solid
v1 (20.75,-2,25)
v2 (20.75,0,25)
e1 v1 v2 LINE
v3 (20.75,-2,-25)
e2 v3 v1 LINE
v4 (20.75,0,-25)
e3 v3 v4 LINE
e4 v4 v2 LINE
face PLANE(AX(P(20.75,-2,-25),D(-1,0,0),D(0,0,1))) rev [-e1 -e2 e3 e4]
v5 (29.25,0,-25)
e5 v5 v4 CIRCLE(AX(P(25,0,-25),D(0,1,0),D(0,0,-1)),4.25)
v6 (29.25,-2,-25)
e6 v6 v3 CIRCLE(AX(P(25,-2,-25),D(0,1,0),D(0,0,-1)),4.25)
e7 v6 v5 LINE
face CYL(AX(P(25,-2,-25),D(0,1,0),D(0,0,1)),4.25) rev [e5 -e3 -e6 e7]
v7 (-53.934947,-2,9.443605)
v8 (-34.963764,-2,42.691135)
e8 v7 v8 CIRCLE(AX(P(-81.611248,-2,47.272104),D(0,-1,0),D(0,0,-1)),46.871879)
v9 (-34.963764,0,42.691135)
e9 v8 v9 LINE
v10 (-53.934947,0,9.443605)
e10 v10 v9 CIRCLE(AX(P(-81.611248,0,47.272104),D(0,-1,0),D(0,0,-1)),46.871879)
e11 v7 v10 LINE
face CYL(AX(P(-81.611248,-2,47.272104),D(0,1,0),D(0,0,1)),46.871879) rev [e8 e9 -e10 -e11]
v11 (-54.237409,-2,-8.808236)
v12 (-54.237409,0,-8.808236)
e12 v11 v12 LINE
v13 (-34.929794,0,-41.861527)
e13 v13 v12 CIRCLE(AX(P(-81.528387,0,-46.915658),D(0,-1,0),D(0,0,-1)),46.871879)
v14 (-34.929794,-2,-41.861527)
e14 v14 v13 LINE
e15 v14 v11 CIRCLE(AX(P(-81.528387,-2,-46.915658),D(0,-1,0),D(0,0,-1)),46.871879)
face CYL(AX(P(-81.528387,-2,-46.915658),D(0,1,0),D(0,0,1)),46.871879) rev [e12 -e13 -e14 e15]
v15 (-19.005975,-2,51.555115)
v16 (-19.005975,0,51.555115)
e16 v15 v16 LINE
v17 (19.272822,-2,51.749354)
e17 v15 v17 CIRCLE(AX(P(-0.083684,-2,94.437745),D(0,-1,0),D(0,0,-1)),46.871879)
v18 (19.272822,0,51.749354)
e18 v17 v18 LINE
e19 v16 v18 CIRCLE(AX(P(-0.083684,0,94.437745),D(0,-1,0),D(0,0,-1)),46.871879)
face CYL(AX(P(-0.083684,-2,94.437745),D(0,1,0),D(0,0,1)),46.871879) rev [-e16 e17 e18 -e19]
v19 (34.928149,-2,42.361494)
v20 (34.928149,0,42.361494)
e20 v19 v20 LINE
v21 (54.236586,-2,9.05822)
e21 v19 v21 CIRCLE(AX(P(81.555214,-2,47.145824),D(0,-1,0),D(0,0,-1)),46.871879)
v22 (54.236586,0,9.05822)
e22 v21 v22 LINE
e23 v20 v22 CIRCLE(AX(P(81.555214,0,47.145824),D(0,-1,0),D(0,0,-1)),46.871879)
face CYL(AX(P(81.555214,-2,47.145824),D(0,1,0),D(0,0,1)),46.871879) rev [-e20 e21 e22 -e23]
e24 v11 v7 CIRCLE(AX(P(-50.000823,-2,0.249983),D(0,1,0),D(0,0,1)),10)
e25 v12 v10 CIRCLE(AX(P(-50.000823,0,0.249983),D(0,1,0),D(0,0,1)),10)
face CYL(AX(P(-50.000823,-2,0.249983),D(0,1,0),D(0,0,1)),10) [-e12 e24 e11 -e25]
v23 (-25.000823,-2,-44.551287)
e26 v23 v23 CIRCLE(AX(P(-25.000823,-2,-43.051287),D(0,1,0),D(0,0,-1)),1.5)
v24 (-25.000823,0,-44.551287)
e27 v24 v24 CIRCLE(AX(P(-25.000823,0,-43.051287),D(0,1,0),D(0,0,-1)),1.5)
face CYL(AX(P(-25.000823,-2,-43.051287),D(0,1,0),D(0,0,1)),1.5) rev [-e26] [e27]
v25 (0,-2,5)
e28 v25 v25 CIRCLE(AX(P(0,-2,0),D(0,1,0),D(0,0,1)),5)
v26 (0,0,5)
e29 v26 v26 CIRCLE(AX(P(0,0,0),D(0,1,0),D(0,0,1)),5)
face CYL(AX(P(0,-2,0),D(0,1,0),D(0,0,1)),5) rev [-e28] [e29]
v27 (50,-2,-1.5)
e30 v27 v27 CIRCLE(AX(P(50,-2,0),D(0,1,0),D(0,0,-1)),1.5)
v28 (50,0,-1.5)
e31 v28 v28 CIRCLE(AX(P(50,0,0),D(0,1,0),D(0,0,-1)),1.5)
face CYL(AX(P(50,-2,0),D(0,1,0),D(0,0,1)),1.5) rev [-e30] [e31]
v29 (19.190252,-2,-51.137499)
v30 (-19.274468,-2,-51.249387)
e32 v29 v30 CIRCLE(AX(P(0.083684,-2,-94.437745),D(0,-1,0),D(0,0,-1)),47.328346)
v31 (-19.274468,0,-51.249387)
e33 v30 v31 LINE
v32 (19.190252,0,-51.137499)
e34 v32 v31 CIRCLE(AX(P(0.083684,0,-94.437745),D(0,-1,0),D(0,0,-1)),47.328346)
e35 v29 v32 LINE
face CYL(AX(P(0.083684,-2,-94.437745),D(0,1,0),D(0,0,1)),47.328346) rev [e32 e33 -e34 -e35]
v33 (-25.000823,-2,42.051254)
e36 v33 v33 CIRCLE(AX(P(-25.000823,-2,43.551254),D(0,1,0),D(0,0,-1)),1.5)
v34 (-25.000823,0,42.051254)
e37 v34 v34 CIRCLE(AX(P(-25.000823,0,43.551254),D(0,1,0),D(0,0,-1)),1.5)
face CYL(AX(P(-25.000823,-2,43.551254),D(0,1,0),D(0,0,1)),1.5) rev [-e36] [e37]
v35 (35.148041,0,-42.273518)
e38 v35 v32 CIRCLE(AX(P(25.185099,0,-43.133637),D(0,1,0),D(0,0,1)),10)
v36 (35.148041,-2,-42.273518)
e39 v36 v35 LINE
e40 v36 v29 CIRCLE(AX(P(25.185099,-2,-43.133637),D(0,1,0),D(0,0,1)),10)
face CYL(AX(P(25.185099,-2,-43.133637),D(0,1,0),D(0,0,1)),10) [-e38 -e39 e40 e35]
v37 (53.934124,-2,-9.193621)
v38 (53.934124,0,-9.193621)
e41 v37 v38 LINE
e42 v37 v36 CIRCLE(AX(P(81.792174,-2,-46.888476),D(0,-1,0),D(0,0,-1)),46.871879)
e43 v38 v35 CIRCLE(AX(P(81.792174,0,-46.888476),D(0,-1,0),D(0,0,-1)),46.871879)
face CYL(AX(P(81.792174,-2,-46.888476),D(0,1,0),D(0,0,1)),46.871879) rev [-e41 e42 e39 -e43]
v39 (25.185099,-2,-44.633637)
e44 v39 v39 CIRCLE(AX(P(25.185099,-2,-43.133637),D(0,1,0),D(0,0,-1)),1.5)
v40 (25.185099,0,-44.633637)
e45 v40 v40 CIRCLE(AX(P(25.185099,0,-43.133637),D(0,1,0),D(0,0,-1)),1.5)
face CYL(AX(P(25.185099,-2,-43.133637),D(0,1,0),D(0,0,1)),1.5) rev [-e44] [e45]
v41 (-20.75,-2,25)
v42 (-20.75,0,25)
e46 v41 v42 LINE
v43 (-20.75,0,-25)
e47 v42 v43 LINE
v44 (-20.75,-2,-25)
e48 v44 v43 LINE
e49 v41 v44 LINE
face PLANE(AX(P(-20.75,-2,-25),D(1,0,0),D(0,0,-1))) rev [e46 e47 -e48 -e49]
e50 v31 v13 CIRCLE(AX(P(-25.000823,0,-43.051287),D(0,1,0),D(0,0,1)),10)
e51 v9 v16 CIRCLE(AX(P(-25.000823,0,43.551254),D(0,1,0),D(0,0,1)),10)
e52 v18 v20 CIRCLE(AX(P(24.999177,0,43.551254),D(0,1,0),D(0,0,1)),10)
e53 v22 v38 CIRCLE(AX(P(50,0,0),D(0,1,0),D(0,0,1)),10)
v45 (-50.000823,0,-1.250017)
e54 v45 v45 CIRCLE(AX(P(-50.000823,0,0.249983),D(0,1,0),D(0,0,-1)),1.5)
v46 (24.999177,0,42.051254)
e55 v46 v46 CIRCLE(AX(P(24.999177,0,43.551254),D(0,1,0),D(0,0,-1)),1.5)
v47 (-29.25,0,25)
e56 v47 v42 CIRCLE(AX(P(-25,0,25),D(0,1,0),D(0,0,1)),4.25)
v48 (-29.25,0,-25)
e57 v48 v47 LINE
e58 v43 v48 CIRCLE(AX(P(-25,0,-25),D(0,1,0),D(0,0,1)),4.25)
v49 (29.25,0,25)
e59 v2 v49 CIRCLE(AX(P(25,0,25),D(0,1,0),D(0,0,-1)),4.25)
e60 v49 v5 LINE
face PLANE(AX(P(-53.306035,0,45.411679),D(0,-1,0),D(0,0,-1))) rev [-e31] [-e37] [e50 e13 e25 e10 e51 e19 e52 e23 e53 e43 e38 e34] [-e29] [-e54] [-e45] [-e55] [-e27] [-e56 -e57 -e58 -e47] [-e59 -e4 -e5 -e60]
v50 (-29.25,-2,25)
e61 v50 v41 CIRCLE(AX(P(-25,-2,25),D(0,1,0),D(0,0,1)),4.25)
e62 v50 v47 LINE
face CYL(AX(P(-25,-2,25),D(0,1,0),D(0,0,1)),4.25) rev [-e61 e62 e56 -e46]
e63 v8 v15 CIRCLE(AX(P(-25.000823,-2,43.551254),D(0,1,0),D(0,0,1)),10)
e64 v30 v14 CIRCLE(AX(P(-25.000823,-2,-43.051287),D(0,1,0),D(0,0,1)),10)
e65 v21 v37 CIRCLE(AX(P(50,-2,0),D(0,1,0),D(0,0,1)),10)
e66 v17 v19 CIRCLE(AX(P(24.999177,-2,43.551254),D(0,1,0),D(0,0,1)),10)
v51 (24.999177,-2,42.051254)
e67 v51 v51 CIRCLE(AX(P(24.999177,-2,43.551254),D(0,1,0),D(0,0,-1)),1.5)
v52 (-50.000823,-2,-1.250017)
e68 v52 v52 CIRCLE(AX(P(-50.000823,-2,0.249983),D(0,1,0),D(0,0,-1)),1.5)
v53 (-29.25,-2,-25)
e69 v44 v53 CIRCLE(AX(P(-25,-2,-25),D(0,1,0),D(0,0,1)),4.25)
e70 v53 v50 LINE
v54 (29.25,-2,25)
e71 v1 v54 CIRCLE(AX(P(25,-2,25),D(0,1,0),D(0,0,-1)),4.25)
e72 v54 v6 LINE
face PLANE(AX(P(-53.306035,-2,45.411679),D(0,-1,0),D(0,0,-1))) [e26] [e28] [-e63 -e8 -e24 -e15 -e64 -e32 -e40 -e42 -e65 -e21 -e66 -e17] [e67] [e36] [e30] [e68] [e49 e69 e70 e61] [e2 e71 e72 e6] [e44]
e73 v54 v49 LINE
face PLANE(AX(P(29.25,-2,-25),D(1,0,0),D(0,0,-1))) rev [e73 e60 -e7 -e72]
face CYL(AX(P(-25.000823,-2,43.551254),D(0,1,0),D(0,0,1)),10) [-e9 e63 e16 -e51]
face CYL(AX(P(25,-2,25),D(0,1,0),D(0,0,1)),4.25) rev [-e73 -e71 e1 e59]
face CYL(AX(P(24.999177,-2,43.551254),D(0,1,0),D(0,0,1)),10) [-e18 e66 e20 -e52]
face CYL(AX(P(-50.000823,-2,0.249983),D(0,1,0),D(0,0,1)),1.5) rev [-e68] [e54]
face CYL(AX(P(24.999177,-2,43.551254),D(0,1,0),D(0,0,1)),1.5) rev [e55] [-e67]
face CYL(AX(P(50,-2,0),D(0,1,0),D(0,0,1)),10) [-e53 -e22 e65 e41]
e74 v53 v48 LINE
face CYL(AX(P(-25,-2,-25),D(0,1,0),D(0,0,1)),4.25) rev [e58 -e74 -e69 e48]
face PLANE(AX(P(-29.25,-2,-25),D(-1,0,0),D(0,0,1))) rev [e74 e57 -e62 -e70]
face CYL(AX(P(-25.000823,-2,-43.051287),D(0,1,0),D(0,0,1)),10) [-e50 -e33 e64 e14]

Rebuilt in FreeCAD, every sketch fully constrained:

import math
import FreeCAD as App
import Part
import Sketcher

V = App.Vector
Q = App.Units.Quantity

doc = App.newDocument("Part")
body = doc.addObject("PartDesign::Body", "Body")

# Sketch on XZ plane
sketch1 = body.newObject("Sketcher::SketchObject", "Sketch")
sketch1.AttachmentSupport = (doc.getObject("XZ_Plane"), [""])
sketch1.MapMode = "FlatFace"
sketch1.addGeometry([
    Part.ArcOfCircle(Part.Circle(V(-25, 43.6, 0), V(0, 0, 1), 10), math.radians(53), math.radians(185)),  # 0
    Part.ArcOfCircle(Part.Circle(V(-0.1, 94.4, 0), V(0, 0, 1), 46.9), math.radians(-114), math.radians(-66)),  # 1
    Part.ArcOfCircle(Part.Circle(V(25, 43.6, 0), V(0, 0, 1), 10), math.radians(-7), math.radians(125)),  # 2
    Part.ArcOfCircle(Part.Circle(V(81.6, 47.1, 0), V(0, 0, 1), 46.9), math.radians(-174), math.radians(-126)),  # 3
    Part.ArcOfCircle(Part.Circle(V(50, 0, 0), V(0, 0, 1), 10), math.radians(-67), math.radians(65)),  # 4
    Part.ArcOfCircle(Part.Circle(V(81.8, -46.9, 0), V(0, 0, 1), 46.9), math.radians(126), math.radians(174)),  # 5
    Part.ArcOfCircle(Part.Circle(V(25.2, -43.1, 0), V(0, 0, 1), 10), math.radians(-127), math.radians(5)),  # 6
    Part.ArcOfCircle(Part.Circle(V(0.1, -94.4, 0), V(0, 0, 1), 47.3), math.radians(66), math.radians(114)),  # 7
    Part.ArcOfCircle(Part.Circle(V(-25, -43.1, 0), V(0, 0, 1), 10), math.radians(173), math.radians(305)),  # 8
    Part.ArcOfCircle(Part.Circle(V(-81.5, -46.9, 0), V(0, 0, 1), 46.9), math.radians(6), math.radians(54)),  # 9
    Part.ArcOfCircle(Part.Circle(V(-50, 0.2, 0), V(0, 0, 1), 10), math.radians(113), math.radians(245)),  # 10
    Part.ArcOfCircle(Part.Circle(V(-81.6, 47.3, 0), V(0, 0, 1), 46.9), math.radians(-54), math.radians(-6)),  # 11
    Part.Circle(V(-25, 43.6, 0), V(0, 0, 1), 1.5),  # 12
    Part.Circle(V(-50, 0.2, 0), V(0, 0, 1), 1.5),  # 13
    Part.Circle(V(25, 43.6, 0), V(0, 0, 1), 1.5),  # 14
    Part.Circle(V(-25, -43.1, 0), V(0, 0, 1), 1.5),  # 15
    Part.Circle(V(50, 0, 0), V(0, 0, 1), 1.5),  # 16
    Part.Circle(V(25.2, -43.1, 0), V(0, 0, 1), 1.5),  # 17
], False)
sketch1.addConstraint([
    Sketcher.Constraint("Coincident", 0, 1, 1, 1),
    Sketcher.Constraint("Coincident", 1, 2, 2, 2),
    Sketcher.Constraint("Coincident", 2, 1, 3, 1),
    Sketcher.Constraint("Coincident", 3, 2, 4, 2),
    Sketcher.Constraint("Coincident", 4, 1, 5, 1),
    Sketcher.Constraint("Coincident", 5, 2, 6, 2),
    Sketcher.Constraint("Coincident", 6, 1, 7, 1),
    Sketcher.Constraint("Coincident", 7, 2, 8, 2),
    Sketcher.Constraint("Coincident", 8, 1, 9, 1),
    Sketcher.Constraint("Coincident", 9, 2, 10, 2),
    Sketcher.Constraint("Coincident", 10, 1, 11, 1),
    Sketcher.Constraint("Coincident", 11, 2, 0, 2),
    Sketcher.Constraint("Coincident", 12, 3, 0, 3),
    Sketcher.Constraint("Coincident", 13, 3, 10, 3),
    Sketcher.Constraint("Coincident", 14, 3, 2, 3),
    Sketcher.Constraint("Coincident", 15, 3, 8, 3),
    Sketcher.Constraint("Coincident", 16, 3, 4, 3),
    Sketcher.Constraint("Coincident", 17, 3, 6, 3),
    Sketcher.Constraint("Equal", 0, 2),
    Sketcher.Constraint("Equal", 1, 3),
    Sketcher.Constraint("Equal", 2, 4),
    Sketcher.Constraint("Equal", 3, 5),
    Sketcher.Constraint("Equal", 4, 6),
    Sketcher.Constraint("Equal", 6, 8),
    Sketcher.Constraint("Equal", 5, 9),
    Sketcher.Constraint("Equal", 8, 10),
    Sketcher.Constraint("Equal", 9, 11),
    Sketcher.Constraint("Equal", 12, 13),
    Sketcher.Constraint("Equal", 13, 14),
    Sketcher.Constraint("Equal", 14, 15),
    Sketcher.Constraint("Equal", 15, 16),
    Sketcher.Constraint("Equal", 16, 17),
    Sketcher.Constraint("Symmetric", 1, 3, 7, 3, -1, 1),
    Sketcher.Constraint("PointOnObject", 4, 3, -1),
    Sketcher.Constraint("Horizontal", 0, 3, 2, 3),
    Sketcher.Constraint("Vertical", 0, 3, 8, 3),
    Sketcher.Constraint("Diameter", 12, Q("3 mm")),
    Sketcher.Constraint("Radius", 0, Q("10 mm")),
    Sketcher.Constraint("DistanceX", -1, 1, 4, 3, Q("50 mm")),
    Sketcher.Constraint("DistanceX", 0, 3, 2, 3, Q("50 mm")),
    Sketcher.Constraint("DistanceX", 10, 3, 8, 3, Q("25 mm")),
    Sketcher.Constraint("Radius", 1, Q("46.871879 mm")),
    Sketcher.Constraint("Radius", 7, Q("47.328346 mm")),
    Sketcher.Constraint("DistanceY", 7, 3, 2, 3, Q("137.988999 mm")),
    Sketcher.Constraint("DistanceX", -1, 1, 6, 3, Q("25.185099 mm")),
    Sketcher.Constraint("DistanceY", 6, 1, -1, 1, Q("51.137499 mm")),
    Sketcher.Constraint("DistanceX", 1, 3, 3, 3, Q("81.638898 mm")),
    Sketcher.Constraint("DistanceY", 5, 3, 3, 3, Q("94.0343 mm")),
    Sketcher.Constraint("DistanceY", 14, 3, 1, 2, Q("8.198101 mm")),
    Sketcher.Constraint("DistanceY", 7, 2, 15, 3, Q("8.198101 mm")),
    Sketcher.Constraint("DistanceX", 11, 3, -1, 1, Q("81.611248 mm")),
    Sketcher.Constraint("DistanceX", -1, 1, 1, 2, Q("19.272822 mm")),
    Sketcher.Constraint("DistanceX", -1, 1, 2, 1, Q("34.928149 mm")),
    Sketcher.Constraint("DistanceY", -1, 1, 3, 2, Q("9.05822 mm")),
    Sketcher.Constraint("DistanceY", 4, 1, -1, 1, Q("9.193621 mm")),
    Sketcher.Constraint("DistanceX", 9, 2, -1, 1, Q("54.237409 mm")),
    Sketcher.Constraint("DistanceY", 9, 3, 8, 3, Q("3.864371 mm")),
    Sketcher.Constraint("DistanceX", 9, 3, 7, 3, Q("81.612071 mm")),
    Sketcher.Constraint("DistanceY", 10, 3, 11, 3, Q("47.022121 mm")),
])
pad1 = body.newObject("PartDesign::Pad", "Pad")
pad1.Profile = sketch1
pad1.Length = 2

# Sketch on XZ plane
sketch2 = body.newObject("Sketcher::SketchObject", "Sketch001")
sketch2.AttachmentSupport = (doc.getObject("XZ_Plane"), [""])
sketch2.MapMode = "FlatFace"
sketch2.addGeometry([
    Part.LineSegment(V(-20.8, 25, 0), V(-20.8, -25, 0)),  # 0
    Part.ArcOfCircle(Part.Circle(V(-25, -25, 0), V(0, 0, 1), 4.2), math.radians(180), math.radians(360)),  # 1
    Part.LineSegment(V(-29.2, -25, 0), V(-29.2, 25, 0)),  # 2
    Part.ArcOfCircle(Part.Circle(V(-25, 25, 0), V(0, 0, 1), 4.2), math.radians(0), math.radians(180)),  # 3
    Part.LineSegment(V(20.8, -25, 0), V(20.8, 25, 0)),  # 4
    Part.ArcOfCircle(Part.Circle(V(25, 25, 0), V(0, 0, 1), 4.2), math.radians(0), math.radians(180)),  # 5
    Part.LineSegment(V(29.2, 25, 0), V(29.2, -25, 0)),  # 6
    Part.ArcOfCircle(Part.Circle(V(25, -25, 0), V(0, 0, 1), 4.2), math.radians(180), math.radians(360)),  # 7
], False)
sketch2.addConstraint([
    Sketcher.Constraint("Tangent", 0, 2, 1, 2),
    Sketcher.Constraint("Tangent", 1, 1, 2, 1),
    Sketcher.Constraint("Tangent", 2, 2, 3, 2),
    Sketcher.Constraint("Tangent", 3, 1, 0, 1),
    Sketcher.Constraint("Tangent", 4, 2, 5, 2),
    Sketcher.Constraint("Tangent", 5, 1, 6, 1),
    Sketcher.Constraint("Tangent", 6, 2, 7, 2),
    Sketcher.Constraint("Tangent", 7, 1, 4, 1),
    Sketcher.Constraint("Vertical", 0),
    Sketcher.Constraint("Vertical", 2),
    Sketcher.Constraint("Vertical", 4),
    Sketcher.Constraint("Vertical", 6),
    Sketcher.Constraint("Equal", 3, 5),
    Sketcher.Constraint("Symmetric", 1, 3, 5, 3, -1, 1),
    Sketcher.Constraint("Horizontal", 3, 3, 5, 3),
    Sketcher.Constraint("Horizontal", 1, 3, 7, 3),
    Sketcher.Constraint("DistanceY", 0, 2, 0, 1, Q("50 mm")),
    Sketcher.Constraint("Radius", 1, Q("4.25 mm")),
    Sketcher.Constraint("DistanceX", 1, 3, -1, 1, Q("25 mm")),
])
pocket1 = body.newObject("PartDesign::Pocket", "Pocket")
pocket1.Profile = sketch2
pocket1.Type = "ThroughAll"
pocket1.Reversed = True

# Sketch on XZ plane
sketch3 = body.newObject("Sketcher::SketchObject", "Sketch002")
sketch3.AttachmentSupport = (doc.getObject("XZ_Plane"), [""])
sketch3.MapMode = "FlatFace"
sketch3.addGeometry(Part.Circle(V(0, 0, 0), V(0, 0, 1), 5), False)
sketch3.addConstraint([
    Sketcher.Constraint("Coincident", 0, 3, -1, 1),
    Sketcher.Constraint("Diameter", 0, Q("10 mm")),
])
pocket2 = body.newObject("PartDesign::Pocket", "Pocket001")
pocket2.Profile = sketch3
pocket2.Type = "ThroughAll"
pocket2.Reversed = True

doc.recompute()
